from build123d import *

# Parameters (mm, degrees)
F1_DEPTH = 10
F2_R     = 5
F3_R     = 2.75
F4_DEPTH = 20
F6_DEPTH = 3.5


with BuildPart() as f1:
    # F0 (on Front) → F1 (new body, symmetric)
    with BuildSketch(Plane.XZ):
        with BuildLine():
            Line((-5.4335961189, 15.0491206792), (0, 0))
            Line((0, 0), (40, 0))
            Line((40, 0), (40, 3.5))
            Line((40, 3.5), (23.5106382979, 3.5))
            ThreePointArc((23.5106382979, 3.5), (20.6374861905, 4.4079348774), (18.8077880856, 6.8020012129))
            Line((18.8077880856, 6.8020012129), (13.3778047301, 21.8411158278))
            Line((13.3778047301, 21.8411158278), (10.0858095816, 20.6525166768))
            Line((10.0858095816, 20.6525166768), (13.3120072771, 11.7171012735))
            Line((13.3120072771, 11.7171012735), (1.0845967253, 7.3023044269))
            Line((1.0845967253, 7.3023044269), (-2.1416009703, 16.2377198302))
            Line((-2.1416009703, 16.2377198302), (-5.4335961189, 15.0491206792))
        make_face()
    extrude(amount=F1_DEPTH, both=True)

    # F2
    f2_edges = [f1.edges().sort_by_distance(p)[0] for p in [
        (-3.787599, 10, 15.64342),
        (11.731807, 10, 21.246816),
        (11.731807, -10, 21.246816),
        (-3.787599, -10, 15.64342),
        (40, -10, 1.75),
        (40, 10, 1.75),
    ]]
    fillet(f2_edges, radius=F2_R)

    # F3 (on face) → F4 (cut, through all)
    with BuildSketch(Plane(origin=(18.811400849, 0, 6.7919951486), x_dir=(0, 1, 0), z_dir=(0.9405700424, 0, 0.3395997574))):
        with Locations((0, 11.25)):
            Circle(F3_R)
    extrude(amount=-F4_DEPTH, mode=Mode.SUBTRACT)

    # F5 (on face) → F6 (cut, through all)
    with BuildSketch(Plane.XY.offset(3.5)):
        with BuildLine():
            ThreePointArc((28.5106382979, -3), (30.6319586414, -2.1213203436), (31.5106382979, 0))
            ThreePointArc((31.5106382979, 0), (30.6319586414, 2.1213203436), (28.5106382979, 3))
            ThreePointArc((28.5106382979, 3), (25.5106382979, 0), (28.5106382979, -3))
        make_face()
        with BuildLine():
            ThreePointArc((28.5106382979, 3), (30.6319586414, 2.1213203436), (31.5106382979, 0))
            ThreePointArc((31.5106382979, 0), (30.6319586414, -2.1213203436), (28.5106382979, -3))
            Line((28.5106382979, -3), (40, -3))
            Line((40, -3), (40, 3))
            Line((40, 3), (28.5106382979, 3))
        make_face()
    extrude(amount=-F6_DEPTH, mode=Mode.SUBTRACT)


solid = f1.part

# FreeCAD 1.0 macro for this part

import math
import FreeCAD as App
import Part
import Sketcher
Q = App.Units.Quantity


def edges_at(feature, points):
    """Names of the edges that pass closest to the given points."""
    edges = feature.Shape.Edges
    near = lambda p: min(range(len(edges)), key=lambda i: edges[i].distToShape(Part.Vertex(*p))[0])
    return sorted({f"Edge{near(p) + 1}" for p in points})

doc = App.newDocument("Part")
body = doc.addObject("PartDesign::Body", "Body")

# Sketch on XZ plane
sketch1 = body.newObject("Sketcher::SketchObject", "Sketch")
sketch1.AttachmentSupport = (doc.getObject("XZ_Plane"), [""])
sketch1.MapMode = "FlatFace"
sketch1.addGeometry(Part.LineSegment(App.Vector(-5.4, 15, 0), App.Vector(0, 0, 0)), False)
sketch1.addGeometry(Part.LineSegment(App.Vector(0, 0, 0), App.Vector(40, 0, 0)), False)
sketch1.addGeometry(Part.LineSegment(App.Vector(40, 0, 0), App.Vector(40, 3.5, 0)), False)
sketch1.addGeometry(Part.LineSegment(App.Vector(40, 3.5, 0), App.Vector(23.5, 3.5, 0)), False)
sketch1.addGeometry(Part.ArcOfCircle(Part.Circle(App.Vector(23.5, 8.5, 0), App.Vector(0, 0, 1), 5), math.radians(-160), math.radians(-90)), False)
sketch1.addGeometry(Part.LineSegment(App.Vector(18.8, 6.8, 0), App.Vector(13.4, 21.8, 0)), False)
sketch1.addGeometry(Part.LineSegment(App.Vector(13.4, 21.8, 0), App.Vector(10.1, 20.7, 0)), False)
sketch1.addGeometry(Part.LineSegment(App.Vector(10.1, 20.7, 0), App.Vector(13.3, 11.7, 0)), False)
sketch1.addGeometry(Part.LineSegment(App.Vector(13.3, 11.7, 0), App.Vector(1.1, 7.3, 0)), False)
sketch1.addGeometry(Part.LineSegment(App.Vector(1.1, 7.3, 0), App.Vector(-2.1, 16.2, 0)), False)
sketch1.addGeometry(Part.LineSegment(App.Vector(-2.1, 16.2, 0), App.Vector(-5.4, 15, 0)), False)
sketch1.addConstraint(Sketcher.Constraint("Coincident", 0, 2, 1, 1))
sketch1.addConstraint(Sketcher.Constraint("Coincident", 1, 2, 2, 1))
sketch1.addConstraint(Sketcher.Constraint("Coincident", 2, 2, 3, 1))
sketch1.addConstraint(Sketcher.Constraint("Tangent", 3, 2, 4, 2))
sketch1.addConstraint(Sketcher.Constraint("Tangent", 4, 1, 5, 1))
sketch1.addConstraint(Sketcher.Constraint("Coincident", 5, 2, 6, 1))
sketch1.addConstraint(Sketcher.Constraint("Coincident", 6, 2, 7, 1))
sketch1.addConstraint(Sketcher.Constraint("Coincident", 7, 2, 8, 1))
sketch1.addConstraint(Sketcher.Constraint("Coincident", 8, 2, 9, 1))
sketch1.addConstraint(Sketcher.Constraint("Coincident", 9, 2, 10, 1))
sketch1.addConstraint(Sketcher.Constraint("Coincident", 10, 2, 0, 1))
sketch1.addConstraint(Sketcher.Constraint("Horizontal", 1))
sketch1.addConstraint(Sketcher.Constraint("Vertical", 2))
sketch1.addConstraint(Sketcher.Constraint("Horizontal", 3))
sketch1.addConstraint(Sketcher.Constraint("Coincident", 0, 2, -1, 1))
sketch1.addConstraint(Sketcher.Constraint("Parallel", 0, 5))
sketch1.addConstraint(Sketcher.Constraint("Perpendicular", 5, 6))
sketch1.addConstraint(Sketcher.Constraint("Perpendicular", 6, 7))
sketch1.addConstraint(Sketcher.Constraint("Perpendicular", 7, 8))
sketch1.addConstraint(Sketcher.Constraint("Perpendicular", 8, 9))
sketch1.addConstraint(Sketcher.Constraint("Perpendicular", 9, 10))
sketch1.addConstraint(Sketcher.Constraint("Equal", 7, 9))
sketch1.addConstraint(Sketcher.Constraint("Equal", 6, 10))
sketch1.addConstraint(Sketcher.Constraint("Radius", 4, Q("5 mm")))
sketch1.addConstraint(Sketcher.Constraint("DistanceX", 1, 1, 1, 2, Q("40 mm")))
sketch1.addConstraint(Sketcher.Constraint("Distance", 0, Q("16 mm")))
sketch1.addConstraint(Sketcher.Constraint("Distance", 8, Q("13 mm")))
sketch1.addConstraint(Sketcher.Constraint("DistanceY", 2, 1, 2, 2, Q("3.5 mm")))
sketch1.addConstraint(Sketcher.Constraint("Distance", 6, Q("3.5 mm")))
sketch1.addConstraint(Sketcher.Constraint("Distance", 7, Q("9.5 mm")))
sketch1.addConstraint(Sketcher.Constraint("DistanceY", -1, 1, 4, 1, Q("6.802001 mm")))
pad1 = body.newObject("PartDesign::Pad", "Pad")
pad1.Profile = sketch1
pad1.Length = 20
pad1.Midplane = True
doc.recompute()

fillet = body.newObject("PartDesign::Fillet", "Fillet")
fillet.Base = (pad1, edges_at(pad1, [
    (-3.788, 10, 15.643),
    (11.732, 10, 21.247),
    (11.732, -10, 21.247),
    (-3.788, -10, 15.643),
    (40, -10, 1.75),
    (40, 10, 1.75),
]))
fillet.Radius = 5

# Sketch on an angled plane
sketch2 = body.newObject("Sketcher::SketchObject", "Sketch001")
sketch2.Placement = App.Placement(App.Vector(18.811401, 0, 6.791995), App.Rotation(App.Vector(0, 1, 0), App.Vector(-0.339599757, 0, 0.940570042), App.Vector(0.940570042, 0, 0.339599757), "ZXY"))
sketch2.addGeometry(Part.Circle(App.Vector(0, 11.2, 0), App.Vector(0, 0, 1), 2.8), False)
sketch2.addConstraint(Sketcher.Constraint("PointOnObject", 0, 3, -2))
sketch2.addConstraint(Sketcher.Constraint("Diameter", 0, Q("5.5 mm")))
sketch2.addConstraint(Sketcher.Constraint("DistanceY", -1, 1, 0, 3, Q("11.25 mm")))
pocket1 = body.newObject("PartDesign::Pocket", "Pocket")
pocket1.Profile = sketch2
pocket1.Type = "ThroughAll"

# Sketch on XY plane
sketch3 = body.newObject("Sketcher::SketchObject", "Sketch002")
sketch3.AttachmentSupport = (doc.getObject("XY_Plane"), [""])
sketch3.MapMode = "FlatFace"
sketch3.AttachmentOffset = App.Placement(App.Vector(0, 0, 3.5), App.Rotation())
sketch3.addGeometry(Part.ArcOfCircle(Part.Circle(App.Vector(28.5, 0, 0), App.Vector(0, 0, 1), 3), math.radians(90), math.radians(270)), False)
sketch3.addGeometry(Part.LineSegment(App.Vector(28.5, -3, 0), App.Vector(40, -3, 0)), False)
sketch3.addGeometry(Part.LineSegment(App.Vector(40, -3, 0), App.Vector(40, 3, 0)), False)
sketch3.addGeometry(Part.LineSegment(App.Vector(40, 3, 0), App.Vector(28.5, 3, 0)), False)
sketch3.addConstraint(Sketcher.Constraint("Tangent", 0, 2, 1, 1))
sketch3.addConstraint(Sketcher.Constraint("Coincident", 1, 2, 2, 1))
sketch3.addConstraint(Sketcher.Constraint("Coincident", 2, 2, 3, 1))
sketch3.addConstraint(Sketcher.Constraint("Tangent", 3, 2, 0, 1))
sketch3.addConstraint(Sketcher.Constraint("Horizontal", 1))
sketch3.addConstraint(Sketcher.Constraint("Vertical", 2))
sketch3.addConstraint(Sketcher.Constraint("Horizontal", 3))
sketch3.addConstraint(Sketcher.Constraint("PointOnObject", 0, 3, -1))
sketch3.addConstraint(Sketcher.Constraint("Radius", 0, Q("3 mm")))
sketch3.addConstraint(Sketcher.Constraint("DistanceX", -1, 1, 1, 2, Q("40 mm")))
sketch3.addConstraint(Sketcher.Constraint("DistanceX", 1, 1, 1, 2, Q("11.489362 mm")))
pocket2 = body.newObject("PartDesign::Pocket", "Pocket001")
pocket2.Profile = sketch3
pocket2.Type = "ThroughAll"

doc.recompute()
